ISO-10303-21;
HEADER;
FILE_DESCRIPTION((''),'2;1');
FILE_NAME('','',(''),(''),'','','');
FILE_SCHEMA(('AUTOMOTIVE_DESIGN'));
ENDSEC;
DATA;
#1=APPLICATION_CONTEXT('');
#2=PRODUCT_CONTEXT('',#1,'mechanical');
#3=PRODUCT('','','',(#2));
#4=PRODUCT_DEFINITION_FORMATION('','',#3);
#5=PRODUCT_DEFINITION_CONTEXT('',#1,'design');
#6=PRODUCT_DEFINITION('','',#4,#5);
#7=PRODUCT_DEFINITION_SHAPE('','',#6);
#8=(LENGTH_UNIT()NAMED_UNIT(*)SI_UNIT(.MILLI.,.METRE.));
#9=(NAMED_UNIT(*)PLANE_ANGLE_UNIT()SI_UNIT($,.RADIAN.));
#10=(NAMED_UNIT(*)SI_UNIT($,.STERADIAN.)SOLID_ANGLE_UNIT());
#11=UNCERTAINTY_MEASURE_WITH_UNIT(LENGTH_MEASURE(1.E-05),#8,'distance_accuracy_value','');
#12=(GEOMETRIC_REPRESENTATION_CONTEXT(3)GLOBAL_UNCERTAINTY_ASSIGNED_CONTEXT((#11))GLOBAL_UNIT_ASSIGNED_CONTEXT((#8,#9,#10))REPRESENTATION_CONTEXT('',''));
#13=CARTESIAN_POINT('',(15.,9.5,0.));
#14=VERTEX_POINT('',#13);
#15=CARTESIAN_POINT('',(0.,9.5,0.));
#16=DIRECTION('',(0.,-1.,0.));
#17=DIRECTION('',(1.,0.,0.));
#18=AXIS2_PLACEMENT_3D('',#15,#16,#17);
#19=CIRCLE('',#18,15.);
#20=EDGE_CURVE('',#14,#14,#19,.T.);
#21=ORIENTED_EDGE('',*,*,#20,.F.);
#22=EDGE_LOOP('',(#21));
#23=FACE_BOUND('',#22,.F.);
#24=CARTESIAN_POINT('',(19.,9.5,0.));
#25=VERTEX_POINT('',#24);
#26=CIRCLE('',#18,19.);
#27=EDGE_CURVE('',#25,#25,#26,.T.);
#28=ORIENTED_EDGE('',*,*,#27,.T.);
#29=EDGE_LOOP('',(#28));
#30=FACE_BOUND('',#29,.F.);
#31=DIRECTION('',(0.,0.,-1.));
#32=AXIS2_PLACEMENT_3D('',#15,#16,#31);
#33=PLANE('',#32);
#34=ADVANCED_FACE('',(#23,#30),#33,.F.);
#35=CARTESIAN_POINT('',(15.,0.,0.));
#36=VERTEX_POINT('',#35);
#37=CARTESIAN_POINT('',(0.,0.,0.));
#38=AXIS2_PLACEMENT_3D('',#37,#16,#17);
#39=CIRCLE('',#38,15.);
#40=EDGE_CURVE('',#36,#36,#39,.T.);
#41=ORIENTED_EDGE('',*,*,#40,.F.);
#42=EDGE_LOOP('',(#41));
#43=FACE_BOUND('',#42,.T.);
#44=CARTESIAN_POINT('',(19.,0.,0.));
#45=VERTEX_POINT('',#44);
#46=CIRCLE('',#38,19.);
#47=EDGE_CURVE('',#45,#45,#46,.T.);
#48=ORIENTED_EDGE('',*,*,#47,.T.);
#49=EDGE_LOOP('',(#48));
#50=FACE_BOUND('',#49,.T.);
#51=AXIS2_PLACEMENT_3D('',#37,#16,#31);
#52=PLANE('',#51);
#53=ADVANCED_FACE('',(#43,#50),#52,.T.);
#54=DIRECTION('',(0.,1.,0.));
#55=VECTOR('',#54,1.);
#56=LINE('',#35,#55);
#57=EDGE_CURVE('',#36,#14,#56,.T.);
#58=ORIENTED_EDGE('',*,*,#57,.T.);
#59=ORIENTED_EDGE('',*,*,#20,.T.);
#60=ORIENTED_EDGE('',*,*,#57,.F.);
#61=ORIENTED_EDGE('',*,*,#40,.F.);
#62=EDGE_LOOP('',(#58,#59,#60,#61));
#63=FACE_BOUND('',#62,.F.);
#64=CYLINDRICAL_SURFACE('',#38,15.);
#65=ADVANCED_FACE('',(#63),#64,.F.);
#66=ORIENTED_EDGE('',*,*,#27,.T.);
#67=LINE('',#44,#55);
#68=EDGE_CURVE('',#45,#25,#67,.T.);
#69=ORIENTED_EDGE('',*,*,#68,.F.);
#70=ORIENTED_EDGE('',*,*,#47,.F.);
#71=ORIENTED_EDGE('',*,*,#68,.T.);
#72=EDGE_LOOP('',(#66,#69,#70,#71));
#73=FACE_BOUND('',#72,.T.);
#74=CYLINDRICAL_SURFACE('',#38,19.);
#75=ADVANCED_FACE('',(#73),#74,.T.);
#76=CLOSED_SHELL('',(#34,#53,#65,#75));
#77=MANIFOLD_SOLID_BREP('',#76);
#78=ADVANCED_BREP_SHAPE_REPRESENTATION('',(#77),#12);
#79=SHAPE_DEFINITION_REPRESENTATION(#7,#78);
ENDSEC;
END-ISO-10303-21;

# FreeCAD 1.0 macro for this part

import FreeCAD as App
import Part
import Sketcher

V = App.Vector
Q = App.Units.Quantity

doc = App.newDocument("Part")
body = doc.addObject("PartDesign::Body", "Body")

# Sketch on XZ plane
sketch1 = body.newObject("Sketcher::SketchObject", "Sketch")
sketch1.AttachmentSupport = (doc.getObject("XZ_Plane"), [""])
sketch1.MapMode = "FlatFace"
sketch1.addGeometry([
    Part.Circle(V(0, 0, 0), V(0, 0, 1), 19),
    Part.Circle(V(0, 0, 0), V(0, 0, 1), 15),
], False)
sketch1.addConstraint([
    Sketcher.Constraint("Coincident", 0, 3, -1, 1),
    Sketcher.Constraint("Coincident", 1, 3, -1, 1),
    Sketcher.Constraint("Diameter", 0, Q("38 mm")),
    Sketcher.Constraint("Diameter", 1, Q("30 mm")),
])
pad1 = body.newObject("PartDesign::Pad", "Pad")
pad1.Profile = sketch1
pad1.Length = 9.5
pad1.Reversed = True

doc.recompute()
